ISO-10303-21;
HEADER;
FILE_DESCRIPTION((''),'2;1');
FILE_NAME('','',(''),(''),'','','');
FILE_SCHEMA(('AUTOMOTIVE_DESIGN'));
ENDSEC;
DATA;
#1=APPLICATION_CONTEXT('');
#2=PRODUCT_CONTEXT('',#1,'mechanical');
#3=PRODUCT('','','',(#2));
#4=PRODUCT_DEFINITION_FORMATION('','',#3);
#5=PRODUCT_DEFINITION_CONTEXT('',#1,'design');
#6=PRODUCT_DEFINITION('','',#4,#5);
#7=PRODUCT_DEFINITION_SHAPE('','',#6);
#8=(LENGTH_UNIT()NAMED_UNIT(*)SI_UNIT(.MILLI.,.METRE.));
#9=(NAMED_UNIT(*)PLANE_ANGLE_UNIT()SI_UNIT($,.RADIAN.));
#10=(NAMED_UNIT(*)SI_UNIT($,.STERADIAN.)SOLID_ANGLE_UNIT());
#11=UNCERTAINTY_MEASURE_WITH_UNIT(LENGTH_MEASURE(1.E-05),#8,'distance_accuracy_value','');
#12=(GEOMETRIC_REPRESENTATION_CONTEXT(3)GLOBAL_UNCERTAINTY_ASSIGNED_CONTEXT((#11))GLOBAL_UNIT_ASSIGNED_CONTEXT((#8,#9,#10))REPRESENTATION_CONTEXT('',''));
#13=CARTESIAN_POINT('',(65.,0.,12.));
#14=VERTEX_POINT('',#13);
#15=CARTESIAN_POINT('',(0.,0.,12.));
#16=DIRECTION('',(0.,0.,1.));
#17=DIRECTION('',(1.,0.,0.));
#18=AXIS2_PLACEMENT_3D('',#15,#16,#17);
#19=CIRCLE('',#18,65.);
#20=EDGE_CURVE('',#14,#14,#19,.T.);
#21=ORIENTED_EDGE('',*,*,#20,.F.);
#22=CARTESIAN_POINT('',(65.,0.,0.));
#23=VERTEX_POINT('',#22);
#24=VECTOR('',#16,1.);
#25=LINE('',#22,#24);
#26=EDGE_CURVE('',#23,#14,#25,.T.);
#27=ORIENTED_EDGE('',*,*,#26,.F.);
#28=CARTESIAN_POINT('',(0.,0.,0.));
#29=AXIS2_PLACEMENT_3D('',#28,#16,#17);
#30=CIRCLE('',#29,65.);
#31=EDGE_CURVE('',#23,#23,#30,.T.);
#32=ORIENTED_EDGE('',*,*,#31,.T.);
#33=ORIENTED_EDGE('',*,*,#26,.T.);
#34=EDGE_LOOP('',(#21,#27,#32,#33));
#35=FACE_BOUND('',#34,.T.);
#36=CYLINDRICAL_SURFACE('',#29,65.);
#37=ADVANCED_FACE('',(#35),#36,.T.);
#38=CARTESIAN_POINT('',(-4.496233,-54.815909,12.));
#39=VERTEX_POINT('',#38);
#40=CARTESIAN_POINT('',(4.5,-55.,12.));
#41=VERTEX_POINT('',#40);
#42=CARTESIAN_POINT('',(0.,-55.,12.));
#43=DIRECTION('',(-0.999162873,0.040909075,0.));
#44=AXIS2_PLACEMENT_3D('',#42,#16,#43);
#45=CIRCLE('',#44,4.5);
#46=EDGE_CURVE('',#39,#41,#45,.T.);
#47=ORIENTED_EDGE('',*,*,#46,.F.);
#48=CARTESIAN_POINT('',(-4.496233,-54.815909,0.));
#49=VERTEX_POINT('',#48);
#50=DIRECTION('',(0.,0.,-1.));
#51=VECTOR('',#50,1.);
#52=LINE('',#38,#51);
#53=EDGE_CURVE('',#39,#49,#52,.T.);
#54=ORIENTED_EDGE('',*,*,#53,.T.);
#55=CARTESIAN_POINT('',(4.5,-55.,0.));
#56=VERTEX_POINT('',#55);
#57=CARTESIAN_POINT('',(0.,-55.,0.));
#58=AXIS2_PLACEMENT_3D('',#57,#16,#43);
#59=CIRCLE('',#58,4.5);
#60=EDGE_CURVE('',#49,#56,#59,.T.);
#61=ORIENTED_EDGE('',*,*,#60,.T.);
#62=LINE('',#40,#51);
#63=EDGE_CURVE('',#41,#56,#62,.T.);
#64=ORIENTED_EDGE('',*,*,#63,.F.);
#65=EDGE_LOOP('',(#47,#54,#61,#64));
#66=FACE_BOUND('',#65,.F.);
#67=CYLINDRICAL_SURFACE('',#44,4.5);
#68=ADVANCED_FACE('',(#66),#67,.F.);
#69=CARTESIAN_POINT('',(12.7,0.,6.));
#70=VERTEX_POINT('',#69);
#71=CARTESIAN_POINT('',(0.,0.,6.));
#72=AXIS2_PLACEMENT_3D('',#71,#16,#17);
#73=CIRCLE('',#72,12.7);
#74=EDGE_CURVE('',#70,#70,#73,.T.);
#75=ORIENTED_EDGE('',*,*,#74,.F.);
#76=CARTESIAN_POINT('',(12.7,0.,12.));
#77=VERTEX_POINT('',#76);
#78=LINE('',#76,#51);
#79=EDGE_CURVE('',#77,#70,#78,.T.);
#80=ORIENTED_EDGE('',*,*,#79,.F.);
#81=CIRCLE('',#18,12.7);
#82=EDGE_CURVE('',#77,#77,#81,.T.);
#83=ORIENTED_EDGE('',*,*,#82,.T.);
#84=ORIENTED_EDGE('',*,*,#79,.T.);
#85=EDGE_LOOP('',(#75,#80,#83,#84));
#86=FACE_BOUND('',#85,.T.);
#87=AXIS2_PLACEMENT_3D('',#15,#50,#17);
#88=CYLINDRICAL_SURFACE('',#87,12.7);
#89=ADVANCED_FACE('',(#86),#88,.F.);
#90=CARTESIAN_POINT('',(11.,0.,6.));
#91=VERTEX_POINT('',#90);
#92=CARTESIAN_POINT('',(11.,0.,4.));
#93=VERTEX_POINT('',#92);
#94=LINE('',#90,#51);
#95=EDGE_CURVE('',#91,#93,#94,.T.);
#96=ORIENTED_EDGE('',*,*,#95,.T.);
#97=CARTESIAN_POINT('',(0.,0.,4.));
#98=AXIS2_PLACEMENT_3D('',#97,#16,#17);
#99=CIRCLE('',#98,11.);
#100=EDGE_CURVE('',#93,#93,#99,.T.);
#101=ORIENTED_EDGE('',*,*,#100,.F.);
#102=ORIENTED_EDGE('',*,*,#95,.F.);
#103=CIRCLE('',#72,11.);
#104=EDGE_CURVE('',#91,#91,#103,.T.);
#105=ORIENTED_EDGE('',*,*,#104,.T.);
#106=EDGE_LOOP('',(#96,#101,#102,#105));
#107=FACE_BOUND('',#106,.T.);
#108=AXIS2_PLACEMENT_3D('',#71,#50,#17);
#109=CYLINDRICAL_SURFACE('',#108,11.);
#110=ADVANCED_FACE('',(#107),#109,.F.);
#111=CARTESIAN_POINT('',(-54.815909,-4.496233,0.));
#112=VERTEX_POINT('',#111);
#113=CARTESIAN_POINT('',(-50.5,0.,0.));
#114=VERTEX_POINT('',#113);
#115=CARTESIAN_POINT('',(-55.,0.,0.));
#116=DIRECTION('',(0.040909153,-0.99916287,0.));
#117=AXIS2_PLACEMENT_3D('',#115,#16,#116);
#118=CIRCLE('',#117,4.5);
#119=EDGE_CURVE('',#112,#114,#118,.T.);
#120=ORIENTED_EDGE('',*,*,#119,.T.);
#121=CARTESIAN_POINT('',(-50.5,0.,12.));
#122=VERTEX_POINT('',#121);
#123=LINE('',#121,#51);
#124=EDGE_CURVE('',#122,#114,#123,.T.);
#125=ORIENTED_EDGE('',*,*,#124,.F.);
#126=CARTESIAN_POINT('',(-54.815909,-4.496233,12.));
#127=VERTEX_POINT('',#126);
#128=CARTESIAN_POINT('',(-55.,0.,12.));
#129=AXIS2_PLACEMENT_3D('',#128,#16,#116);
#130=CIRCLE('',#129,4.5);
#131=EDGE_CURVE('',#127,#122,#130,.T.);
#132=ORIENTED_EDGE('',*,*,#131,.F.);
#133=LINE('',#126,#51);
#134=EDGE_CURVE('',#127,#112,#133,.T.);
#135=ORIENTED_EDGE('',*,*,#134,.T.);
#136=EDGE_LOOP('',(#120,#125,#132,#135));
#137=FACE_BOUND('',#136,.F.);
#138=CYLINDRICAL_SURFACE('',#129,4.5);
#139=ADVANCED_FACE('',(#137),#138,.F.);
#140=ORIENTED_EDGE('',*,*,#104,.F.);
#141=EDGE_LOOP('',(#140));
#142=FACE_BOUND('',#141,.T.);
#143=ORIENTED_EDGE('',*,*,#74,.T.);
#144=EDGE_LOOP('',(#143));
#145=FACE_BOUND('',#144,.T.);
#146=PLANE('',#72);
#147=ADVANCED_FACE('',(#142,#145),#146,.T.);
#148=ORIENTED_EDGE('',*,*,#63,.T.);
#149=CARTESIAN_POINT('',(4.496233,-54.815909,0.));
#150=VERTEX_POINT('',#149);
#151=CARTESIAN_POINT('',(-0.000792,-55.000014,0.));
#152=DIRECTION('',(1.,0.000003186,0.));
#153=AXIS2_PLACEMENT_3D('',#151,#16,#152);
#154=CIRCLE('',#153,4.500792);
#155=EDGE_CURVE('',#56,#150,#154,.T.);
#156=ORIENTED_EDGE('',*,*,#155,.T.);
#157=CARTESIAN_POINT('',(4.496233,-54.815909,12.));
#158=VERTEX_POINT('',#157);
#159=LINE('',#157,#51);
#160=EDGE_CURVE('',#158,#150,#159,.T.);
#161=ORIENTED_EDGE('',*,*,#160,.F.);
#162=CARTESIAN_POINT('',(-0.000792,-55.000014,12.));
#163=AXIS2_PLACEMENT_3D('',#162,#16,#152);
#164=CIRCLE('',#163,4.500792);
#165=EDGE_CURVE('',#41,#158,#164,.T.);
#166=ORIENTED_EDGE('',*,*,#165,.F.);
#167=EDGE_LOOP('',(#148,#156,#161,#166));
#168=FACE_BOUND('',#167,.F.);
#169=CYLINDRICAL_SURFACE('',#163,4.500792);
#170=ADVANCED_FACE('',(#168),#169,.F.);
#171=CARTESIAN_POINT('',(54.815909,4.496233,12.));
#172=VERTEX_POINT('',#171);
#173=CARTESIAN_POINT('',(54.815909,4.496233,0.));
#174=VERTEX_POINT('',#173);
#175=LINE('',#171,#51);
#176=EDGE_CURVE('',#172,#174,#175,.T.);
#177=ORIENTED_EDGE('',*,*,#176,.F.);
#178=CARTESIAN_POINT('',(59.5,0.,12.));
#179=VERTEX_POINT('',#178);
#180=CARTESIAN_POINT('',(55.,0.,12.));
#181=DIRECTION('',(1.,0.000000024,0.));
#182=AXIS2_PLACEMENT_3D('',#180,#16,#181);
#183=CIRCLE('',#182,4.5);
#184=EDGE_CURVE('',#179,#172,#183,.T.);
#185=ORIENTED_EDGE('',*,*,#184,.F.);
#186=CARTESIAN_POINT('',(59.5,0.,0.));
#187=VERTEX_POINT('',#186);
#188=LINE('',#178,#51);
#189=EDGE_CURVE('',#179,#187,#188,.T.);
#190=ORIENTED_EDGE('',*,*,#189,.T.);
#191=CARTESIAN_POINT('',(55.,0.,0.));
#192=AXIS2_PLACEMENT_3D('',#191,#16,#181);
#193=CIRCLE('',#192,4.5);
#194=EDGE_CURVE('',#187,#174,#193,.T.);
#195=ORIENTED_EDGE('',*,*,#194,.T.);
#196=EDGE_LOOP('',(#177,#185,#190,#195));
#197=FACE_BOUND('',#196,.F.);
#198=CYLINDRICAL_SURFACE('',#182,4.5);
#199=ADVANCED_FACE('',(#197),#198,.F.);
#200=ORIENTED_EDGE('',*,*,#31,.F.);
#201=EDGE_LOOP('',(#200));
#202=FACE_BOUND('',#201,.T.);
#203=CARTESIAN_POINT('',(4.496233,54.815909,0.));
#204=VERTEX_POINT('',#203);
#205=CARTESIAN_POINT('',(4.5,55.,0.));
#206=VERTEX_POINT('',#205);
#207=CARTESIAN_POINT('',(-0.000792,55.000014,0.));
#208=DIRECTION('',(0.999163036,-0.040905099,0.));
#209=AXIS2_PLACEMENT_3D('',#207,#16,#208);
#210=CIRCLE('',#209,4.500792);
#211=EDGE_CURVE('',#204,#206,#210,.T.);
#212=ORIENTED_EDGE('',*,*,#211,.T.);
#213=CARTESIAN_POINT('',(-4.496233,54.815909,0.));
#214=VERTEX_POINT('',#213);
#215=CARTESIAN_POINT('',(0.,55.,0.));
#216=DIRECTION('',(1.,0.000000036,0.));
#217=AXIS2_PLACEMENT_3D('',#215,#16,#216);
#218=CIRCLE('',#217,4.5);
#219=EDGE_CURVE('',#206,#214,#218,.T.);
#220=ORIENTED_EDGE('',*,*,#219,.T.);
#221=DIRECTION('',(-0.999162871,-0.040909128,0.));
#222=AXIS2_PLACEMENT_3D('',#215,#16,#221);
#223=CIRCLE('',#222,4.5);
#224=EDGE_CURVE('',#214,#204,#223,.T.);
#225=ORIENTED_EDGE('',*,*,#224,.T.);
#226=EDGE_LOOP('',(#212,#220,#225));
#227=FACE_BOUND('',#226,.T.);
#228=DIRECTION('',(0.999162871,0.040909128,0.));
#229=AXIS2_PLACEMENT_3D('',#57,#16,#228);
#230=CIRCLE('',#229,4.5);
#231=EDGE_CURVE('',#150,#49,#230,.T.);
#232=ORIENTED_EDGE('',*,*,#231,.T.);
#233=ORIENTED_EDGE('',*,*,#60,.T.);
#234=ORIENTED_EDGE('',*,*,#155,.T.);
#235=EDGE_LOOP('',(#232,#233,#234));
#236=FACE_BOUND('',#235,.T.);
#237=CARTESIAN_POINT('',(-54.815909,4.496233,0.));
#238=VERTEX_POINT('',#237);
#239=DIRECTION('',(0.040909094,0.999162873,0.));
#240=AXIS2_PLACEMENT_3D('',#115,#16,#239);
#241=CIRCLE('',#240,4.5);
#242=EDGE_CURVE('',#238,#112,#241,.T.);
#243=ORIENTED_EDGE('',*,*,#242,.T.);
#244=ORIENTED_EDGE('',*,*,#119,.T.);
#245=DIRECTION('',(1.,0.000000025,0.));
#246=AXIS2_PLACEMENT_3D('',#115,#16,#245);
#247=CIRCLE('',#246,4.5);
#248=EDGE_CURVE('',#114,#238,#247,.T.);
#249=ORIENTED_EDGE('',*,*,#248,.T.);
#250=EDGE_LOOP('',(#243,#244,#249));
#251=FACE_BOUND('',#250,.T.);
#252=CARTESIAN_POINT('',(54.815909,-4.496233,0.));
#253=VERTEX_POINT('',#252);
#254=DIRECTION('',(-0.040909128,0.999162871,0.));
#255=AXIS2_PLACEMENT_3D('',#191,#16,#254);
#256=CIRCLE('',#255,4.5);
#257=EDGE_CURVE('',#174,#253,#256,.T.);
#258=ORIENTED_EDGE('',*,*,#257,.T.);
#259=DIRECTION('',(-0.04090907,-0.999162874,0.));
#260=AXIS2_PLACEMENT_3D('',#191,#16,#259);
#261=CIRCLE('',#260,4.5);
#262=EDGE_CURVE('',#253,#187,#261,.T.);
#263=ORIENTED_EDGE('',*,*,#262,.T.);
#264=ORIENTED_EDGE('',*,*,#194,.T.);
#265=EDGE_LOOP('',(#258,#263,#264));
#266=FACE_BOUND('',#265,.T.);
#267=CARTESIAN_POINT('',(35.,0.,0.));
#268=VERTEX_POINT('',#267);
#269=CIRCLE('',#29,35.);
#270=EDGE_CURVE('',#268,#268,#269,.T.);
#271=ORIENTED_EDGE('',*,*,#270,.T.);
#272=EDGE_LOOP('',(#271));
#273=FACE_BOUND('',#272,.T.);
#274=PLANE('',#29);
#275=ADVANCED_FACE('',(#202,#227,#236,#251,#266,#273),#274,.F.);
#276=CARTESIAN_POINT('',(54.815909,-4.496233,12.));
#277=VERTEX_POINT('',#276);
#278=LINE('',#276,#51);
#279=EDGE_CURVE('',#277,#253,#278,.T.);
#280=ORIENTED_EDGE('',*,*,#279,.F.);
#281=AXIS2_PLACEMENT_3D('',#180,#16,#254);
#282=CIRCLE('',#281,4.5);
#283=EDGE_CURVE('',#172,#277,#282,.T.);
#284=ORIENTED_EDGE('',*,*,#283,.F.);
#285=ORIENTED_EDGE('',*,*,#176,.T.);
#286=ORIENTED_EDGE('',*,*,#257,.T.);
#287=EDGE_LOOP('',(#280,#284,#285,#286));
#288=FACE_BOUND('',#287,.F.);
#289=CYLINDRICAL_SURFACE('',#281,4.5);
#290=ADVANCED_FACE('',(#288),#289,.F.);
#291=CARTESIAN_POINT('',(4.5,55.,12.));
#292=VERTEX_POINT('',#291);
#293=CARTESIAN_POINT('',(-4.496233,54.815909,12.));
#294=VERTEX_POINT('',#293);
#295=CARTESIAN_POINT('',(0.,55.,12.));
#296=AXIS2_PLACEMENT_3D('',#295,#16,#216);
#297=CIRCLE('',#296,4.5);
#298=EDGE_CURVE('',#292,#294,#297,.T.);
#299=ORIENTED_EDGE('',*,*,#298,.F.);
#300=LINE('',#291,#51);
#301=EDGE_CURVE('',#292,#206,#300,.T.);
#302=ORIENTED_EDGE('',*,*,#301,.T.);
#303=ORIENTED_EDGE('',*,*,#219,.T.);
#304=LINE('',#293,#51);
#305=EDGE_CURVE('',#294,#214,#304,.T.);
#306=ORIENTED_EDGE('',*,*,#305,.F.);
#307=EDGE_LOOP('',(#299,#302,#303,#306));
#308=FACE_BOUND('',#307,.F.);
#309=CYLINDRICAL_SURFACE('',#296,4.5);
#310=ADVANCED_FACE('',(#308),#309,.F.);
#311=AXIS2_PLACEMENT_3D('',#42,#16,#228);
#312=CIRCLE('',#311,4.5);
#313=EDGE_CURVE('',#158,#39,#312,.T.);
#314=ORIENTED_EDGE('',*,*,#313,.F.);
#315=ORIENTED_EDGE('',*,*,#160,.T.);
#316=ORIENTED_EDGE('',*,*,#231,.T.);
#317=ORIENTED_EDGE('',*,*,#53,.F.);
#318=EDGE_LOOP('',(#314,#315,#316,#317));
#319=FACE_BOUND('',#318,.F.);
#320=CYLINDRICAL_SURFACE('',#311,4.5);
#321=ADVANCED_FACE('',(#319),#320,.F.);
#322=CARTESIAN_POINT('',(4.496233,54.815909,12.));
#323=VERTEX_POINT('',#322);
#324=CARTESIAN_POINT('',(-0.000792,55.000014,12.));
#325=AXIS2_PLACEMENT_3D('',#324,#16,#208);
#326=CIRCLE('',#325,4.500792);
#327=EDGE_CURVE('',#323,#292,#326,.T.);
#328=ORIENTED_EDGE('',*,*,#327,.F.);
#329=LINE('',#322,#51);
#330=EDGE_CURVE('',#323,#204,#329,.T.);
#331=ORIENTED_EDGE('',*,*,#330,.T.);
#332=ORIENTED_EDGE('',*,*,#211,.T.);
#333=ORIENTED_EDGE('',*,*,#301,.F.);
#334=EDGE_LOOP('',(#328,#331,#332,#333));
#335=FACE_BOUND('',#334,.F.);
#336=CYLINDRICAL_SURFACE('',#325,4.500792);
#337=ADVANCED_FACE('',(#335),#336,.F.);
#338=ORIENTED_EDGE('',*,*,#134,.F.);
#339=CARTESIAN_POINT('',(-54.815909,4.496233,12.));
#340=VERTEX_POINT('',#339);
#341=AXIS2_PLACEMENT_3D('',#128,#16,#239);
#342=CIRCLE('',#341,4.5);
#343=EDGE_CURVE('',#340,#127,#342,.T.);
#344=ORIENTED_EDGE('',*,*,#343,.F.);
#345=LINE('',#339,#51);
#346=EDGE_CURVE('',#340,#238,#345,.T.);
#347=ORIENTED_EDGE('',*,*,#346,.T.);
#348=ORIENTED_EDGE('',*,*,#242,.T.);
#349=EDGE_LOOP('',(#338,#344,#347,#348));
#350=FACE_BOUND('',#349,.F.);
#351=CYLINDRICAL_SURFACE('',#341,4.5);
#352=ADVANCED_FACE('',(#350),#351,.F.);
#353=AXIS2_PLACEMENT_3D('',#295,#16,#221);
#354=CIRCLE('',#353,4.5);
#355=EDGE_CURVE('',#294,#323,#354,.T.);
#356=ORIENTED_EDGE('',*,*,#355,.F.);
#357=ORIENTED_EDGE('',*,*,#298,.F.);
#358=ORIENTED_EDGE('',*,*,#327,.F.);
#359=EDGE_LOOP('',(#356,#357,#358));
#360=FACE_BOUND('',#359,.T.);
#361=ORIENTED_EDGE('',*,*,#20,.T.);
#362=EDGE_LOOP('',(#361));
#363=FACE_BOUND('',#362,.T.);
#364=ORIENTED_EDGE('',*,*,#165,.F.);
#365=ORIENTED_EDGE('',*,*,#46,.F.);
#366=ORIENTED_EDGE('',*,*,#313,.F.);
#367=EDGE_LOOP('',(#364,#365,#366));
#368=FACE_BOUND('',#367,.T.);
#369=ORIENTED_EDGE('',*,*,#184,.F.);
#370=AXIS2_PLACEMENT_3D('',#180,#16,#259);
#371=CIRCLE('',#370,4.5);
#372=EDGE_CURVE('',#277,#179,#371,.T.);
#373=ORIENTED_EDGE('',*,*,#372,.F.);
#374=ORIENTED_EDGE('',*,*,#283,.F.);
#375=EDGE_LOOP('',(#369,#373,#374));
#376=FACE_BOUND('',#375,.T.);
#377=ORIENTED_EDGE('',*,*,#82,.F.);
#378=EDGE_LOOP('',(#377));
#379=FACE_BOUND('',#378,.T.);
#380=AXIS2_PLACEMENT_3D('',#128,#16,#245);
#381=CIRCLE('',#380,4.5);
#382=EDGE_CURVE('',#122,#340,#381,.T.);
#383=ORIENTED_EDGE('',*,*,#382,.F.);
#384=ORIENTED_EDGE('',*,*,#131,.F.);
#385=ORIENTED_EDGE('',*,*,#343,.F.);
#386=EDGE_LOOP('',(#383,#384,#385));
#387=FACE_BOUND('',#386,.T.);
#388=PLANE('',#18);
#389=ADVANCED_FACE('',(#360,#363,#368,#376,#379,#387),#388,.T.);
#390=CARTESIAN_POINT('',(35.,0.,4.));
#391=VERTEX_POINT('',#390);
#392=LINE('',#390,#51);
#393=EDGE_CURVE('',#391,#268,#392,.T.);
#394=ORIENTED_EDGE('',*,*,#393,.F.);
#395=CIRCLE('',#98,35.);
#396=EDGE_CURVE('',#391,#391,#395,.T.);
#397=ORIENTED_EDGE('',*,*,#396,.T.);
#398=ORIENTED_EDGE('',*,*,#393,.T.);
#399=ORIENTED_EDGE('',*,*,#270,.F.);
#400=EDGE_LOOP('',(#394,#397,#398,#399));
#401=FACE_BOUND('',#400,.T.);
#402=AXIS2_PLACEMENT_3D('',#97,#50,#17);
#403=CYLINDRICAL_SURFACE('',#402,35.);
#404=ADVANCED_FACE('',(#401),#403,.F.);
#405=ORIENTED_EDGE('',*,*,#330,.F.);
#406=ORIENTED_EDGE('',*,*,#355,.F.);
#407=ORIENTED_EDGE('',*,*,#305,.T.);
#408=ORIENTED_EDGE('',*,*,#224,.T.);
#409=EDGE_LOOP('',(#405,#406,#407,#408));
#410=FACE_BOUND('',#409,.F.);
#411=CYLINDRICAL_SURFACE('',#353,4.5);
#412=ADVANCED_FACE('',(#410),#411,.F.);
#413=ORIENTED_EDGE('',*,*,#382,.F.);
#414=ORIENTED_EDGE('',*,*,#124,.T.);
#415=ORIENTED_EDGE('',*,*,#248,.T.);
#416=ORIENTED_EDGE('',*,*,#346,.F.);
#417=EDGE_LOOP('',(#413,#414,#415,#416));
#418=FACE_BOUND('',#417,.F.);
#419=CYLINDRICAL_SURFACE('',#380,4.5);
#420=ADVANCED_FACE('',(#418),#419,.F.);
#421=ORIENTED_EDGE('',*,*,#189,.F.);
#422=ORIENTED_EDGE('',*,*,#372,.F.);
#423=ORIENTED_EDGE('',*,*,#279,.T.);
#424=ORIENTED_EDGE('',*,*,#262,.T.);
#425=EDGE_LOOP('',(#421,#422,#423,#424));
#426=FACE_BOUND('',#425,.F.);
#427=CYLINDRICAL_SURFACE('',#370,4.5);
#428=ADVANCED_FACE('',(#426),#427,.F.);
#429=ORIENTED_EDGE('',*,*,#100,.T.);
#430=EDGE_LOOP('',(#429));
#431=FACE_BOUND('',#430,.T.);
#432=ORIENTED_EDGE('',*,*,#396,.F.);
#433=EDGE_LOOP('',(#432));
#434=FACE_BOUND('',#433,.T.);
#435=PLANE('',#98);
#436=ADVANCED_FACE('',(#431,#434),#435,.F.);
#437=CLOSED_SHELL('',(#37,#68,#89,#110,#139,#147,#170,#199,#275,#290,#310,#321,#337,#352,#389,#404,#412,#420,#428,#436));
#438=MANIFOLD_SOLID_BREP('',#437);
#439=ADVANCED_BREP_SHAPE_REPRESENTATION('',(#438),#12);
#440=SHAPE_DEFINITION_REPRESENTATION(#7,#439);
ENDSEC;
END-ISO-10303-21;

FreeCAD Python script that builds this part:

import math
import FreeCAD as App
import Part
import Sketcher
from FreeCAD import Vector

doc = App.newDocument("Part")
body = doc.addObject("PartDesign::Body", "Body")

# Sketch on XZ plane
sketch1 = body.newObject("Sketcher::SketchObject", "Sketch")
sketch1.AttachmentSupport = (doc.getObject("XZ_Plane"), [""])
sketch1.MapMode = "FlatFace"
sketch1.addGeometry([
    Part.LineSegment(Vector(35, 4, 0), Vector(35, 0, 0)),  # 0
    Part.LineSegment(Vector(35, 0, 0), Vector(65, 0, 0)),  # 1
    Part.LineSegment(Vector(65, 0, 0), Vector(65, 12, 0)),  # 2
    Part.LineSegment(Vector(65, 12, 0), Vector(12.7, 12, 0)),  # 3
    Part.LineSegment(Vector(12.7, 12, 0), Vector(12.7, 6, 0)),  # 4
    Part.LineSegment(Vector(12.7, 6, 0), Vector(11, 6, 0)),  # 5
    Part.LineSegment(Vector(11, 6, 0), Vector(11, 4, 0)),  # 6
    Part.LineSegment(Vector(11, 4, 0), Vector(35, 4, 0)),  # 7
], False)
sketch1.addConstraint([
    Sketcher.Constraint("Coincident", 0, 2, 1, 1),
    Sketcher.Constraint("Coincident", 1, 2, 2, 1),
    Sketcher.Constraint("Coincident", 2, 2, 3, 1),
    Sketcher.Constraint("Coincident", 3, 2, 4, 1),
    Sketcher.Constraint("Coincident", 4, 2, 5, 1),
    Sketcher.Constraint("Coincident", 5, 2, 6, 1),
    Sketcher.Constraint("Coincident", 6, 2, 7, 1),
    Sketcher.Constraint("Coincident", 7, 2, 0, 1),
    Sketcher.Constraint("Vertical", 0),
    Sketcher.Constraint("Horizontal", 1),
    Sketcher.Constraint("Vertical", 2),
    Sketcher.Constraint("Horizontal", 3),
    Sketcher.Constraint("Vertical", 4),
    Sketcher.Constraint("Horizontal", 5),
    Sketcher.Constraint("Vertical", 6),
    Sketcher.Constraint("Horizontal", 7),
    Sketcher.Constraint("PointOnObject", 0, 2, -1),
    Sketcher.Constraint("DistanceX", 1, 1, 1, 2, 30.0),
    Sketcher.Constraint("DistanceX", 7, 1, 7, 2, 24.0),
    Sketcher.Constraint("DistanceY", 0, 2, 0, 1, 4.0),
    Sketcher.Constraint("DistanceY", 2, 1, 2, 2, 12.0),
    Sketcher.Constraint("DistanceY", 4, 2, 4, 1, 6.0),
    Sketcher.Constraint("DistanceX", 3, 2, 3, 1, 52.3),
    Sketcher.Constraint("DistanceX", -1, 1, 0, 2, 35.0),
])
revolution = body.newObject("PartDesign::Revolution", "Revolution")
revolution.Profile = sketch1
revolution.ReferenceAxis = (sketch1, ["V_Axis"])
revolution.Angle = 360

# Sketch on XY plane
sketch2 = body.newObject("Sketcher::SketchObject", "Sketch001")
sketch2.AttachmentSupport = (doc.getObject("XY_Plane"), [""])
sketch2.MapMode = "FlatFace"
sketch2.AttachmentOffset = App.Placement(Vector(0, 0, 12), App.Rotation())
sketch2.addGeometry([
    Part.ArcOfCircle(Part.Circle(Vector(0, 55, 0), Vector(0, 0, 1), 4.5), math.radians(-177.655425), math.radians(-2.344575)),  # 0
    Part.ArcOfCircle(Part.Circle(Vector(-0.000792, 55.000014, 0), Vector(0, 0, 1), 4.500792), math.radians(-2.344344), math.radians(-0.000183)),  # 1
    Part.ArcOfCircle(Part.Circle(Vector(0, 55, 0), Vector(0, 0, 1), 4.5), math.radians(0.000002), math.radians(182.344572)),  # 2
    Part.ArcOfCircle(Part.Circle(Vector(-55, 0, 0), Vector(0, 0, 1), 4.5), math.radians(0.000001), math.radians(87.655424)),  # 3
    Part.ArcOfCircle(Part.Circle(Vector(-55, 0, 0), Vector(0, 0, 1), 4.5), math.radians(87.655427), math.radians(272.344573)),  # 4
    Part.ArcOfCircle(Part.Circle(Vector(-55, 0, 0), Vector(0, 0, 1), 4.5), math.radians(-87.655424), math.radians(-0.000001)),  # 5
    Part.ArcOfCircle(Part.Circle(Vector(-0.000792, -55.000014, 0), Vector(0, 0, 1), 4.500792), math.radians(0.000183), math.radians(2.344344)),  # 6
    Part.ArcOfCircle(Part.Circle(Vector(0, -55, 0), Vector(0, 0, 1), 4.5), math.radians(2.344575), math.radians(177.655425)),  # 7
    Part.ArcOfCircle(Part.Circle(Vector(0, -55, 0), Vector(0, 0, 1), 4.5), math.radians(177.655428), math.radians(359.999998)),  # 8
    Part.ArcOfCircle(Part.Circle(Vector(55, 0, 0), Vector(0, 0, 1), 4.5), math.radians(0.000001), math.radians(92.344571)),  # 9
    Part.ArcOfCircle(Part.Circle(Vector(55, 0, 0), Vector(0, 0, 1), 4.5), math.radians(92.344575), math.radians(267.655425)),  # 10
    Part.ArcOfCircle(Part.Circle(Vector(55, 0, 0), Vector(0, 0, 1), 4.5), math.radians(-92.344571), math.radians(-0.000001)),  # 11
], False)
sketch2.addConstraint([
    Sketcher.Constraint("Coincident", 0, 2, 1, 1),
    Sketcher.Constraint("Coincident", 1, 2, 2, 1),
    Sketcher.Constraint("Tangent", 2, 2, 0, 1),
    Sketcher.Constraint("Tangent", 3, 2, 4, 1),
    Sketcher.Constraint("Tangent", 4, 2, 5, 1),
    Sketcher.Constraint("Tangent", 5, 2, 3, 1),
    Sketcher.Constraint("Coincident", 6, 2, 7, 1),
    Sketcher.Constraint("Tangent", 7, 2, 8, 1),
    Sketcher.Constraint("Coincident", 8, 2, 6, 1),
    Sketcher.Constraint("Tangent", 9, 2, 10, 1),
    Sketcher.Constraint("Tangent", 10, 2, 11, 1),
    Sketcher.Constraint("Tangent", 11, 2, 9, 1),
    Sketcher.Constraint("Equal", 0, 2),
    Sketcher.Constraint("Equal", 2, 3),
    Sketcher.Constraint("Equal", 1, 6),
    Sketcher.Constraint("Equal", 5, 7),
    Sketcher.Constraint("Equal", 7, 8),
    Sketcher.Constraint("Equal", 8, 9),
    Sketcher.Constraint("Symmetric", 0, 3, 7, 3, -1, 1),
    Sketcher.Constraint("Symmetric", 3, 3, 9, 3, -1, 1),
    Sketcher.Constraint("Symmetric", 0, 2, 2, 2, -2),
    Sketcher.Constraint("Symmetric", 3, 2, 9, 2, -2),
    Sketcher.Constraint("PointOnObject", 5, 2, -1),
    Sketcher.Constraint("PointOnObject", 11, 2, -1),
    Sketcher.Constraint("Horizontal", 2, 3, 1, 2),
    Sketcher.Constraint("Horizontal", 6, 2, 7, 2),
    Sketcher.Constraint("Horizontal", 7, 3, 8, 2),
    Sketcher.Constraint("Horizontal", 4, 2, 10, 2),
    Sketcher.Constraint("Vertical", 3, 2, 4, 2),
    Sketcher.Constraint("Vertical", 0, 2, 6, 2),
    Sketcher.Constraint("Radius", 0, 4.5),
    Sketcher.Constraint("DistanceY", -1, 1, 0, 3, 55.0),
    Sketcher.Constraint("DistanceX", 3, 3, -1, 1, 55.0),
    Sketcher.Constraint("Radius", 1, 4.500792),
    Sketcher.Constraint("DistanceY", -1, 1, 0, 2, 54.815909),
    Sketcher.Constraint("DistanceX", 3, 2, -1, 1, 54.815909),
])
pocket1 = body.newObject("PartDesign::Pocket", "Pocket")
pocket1.Profile = sketch2
pocket1.Length = 12

doc.recompute()
